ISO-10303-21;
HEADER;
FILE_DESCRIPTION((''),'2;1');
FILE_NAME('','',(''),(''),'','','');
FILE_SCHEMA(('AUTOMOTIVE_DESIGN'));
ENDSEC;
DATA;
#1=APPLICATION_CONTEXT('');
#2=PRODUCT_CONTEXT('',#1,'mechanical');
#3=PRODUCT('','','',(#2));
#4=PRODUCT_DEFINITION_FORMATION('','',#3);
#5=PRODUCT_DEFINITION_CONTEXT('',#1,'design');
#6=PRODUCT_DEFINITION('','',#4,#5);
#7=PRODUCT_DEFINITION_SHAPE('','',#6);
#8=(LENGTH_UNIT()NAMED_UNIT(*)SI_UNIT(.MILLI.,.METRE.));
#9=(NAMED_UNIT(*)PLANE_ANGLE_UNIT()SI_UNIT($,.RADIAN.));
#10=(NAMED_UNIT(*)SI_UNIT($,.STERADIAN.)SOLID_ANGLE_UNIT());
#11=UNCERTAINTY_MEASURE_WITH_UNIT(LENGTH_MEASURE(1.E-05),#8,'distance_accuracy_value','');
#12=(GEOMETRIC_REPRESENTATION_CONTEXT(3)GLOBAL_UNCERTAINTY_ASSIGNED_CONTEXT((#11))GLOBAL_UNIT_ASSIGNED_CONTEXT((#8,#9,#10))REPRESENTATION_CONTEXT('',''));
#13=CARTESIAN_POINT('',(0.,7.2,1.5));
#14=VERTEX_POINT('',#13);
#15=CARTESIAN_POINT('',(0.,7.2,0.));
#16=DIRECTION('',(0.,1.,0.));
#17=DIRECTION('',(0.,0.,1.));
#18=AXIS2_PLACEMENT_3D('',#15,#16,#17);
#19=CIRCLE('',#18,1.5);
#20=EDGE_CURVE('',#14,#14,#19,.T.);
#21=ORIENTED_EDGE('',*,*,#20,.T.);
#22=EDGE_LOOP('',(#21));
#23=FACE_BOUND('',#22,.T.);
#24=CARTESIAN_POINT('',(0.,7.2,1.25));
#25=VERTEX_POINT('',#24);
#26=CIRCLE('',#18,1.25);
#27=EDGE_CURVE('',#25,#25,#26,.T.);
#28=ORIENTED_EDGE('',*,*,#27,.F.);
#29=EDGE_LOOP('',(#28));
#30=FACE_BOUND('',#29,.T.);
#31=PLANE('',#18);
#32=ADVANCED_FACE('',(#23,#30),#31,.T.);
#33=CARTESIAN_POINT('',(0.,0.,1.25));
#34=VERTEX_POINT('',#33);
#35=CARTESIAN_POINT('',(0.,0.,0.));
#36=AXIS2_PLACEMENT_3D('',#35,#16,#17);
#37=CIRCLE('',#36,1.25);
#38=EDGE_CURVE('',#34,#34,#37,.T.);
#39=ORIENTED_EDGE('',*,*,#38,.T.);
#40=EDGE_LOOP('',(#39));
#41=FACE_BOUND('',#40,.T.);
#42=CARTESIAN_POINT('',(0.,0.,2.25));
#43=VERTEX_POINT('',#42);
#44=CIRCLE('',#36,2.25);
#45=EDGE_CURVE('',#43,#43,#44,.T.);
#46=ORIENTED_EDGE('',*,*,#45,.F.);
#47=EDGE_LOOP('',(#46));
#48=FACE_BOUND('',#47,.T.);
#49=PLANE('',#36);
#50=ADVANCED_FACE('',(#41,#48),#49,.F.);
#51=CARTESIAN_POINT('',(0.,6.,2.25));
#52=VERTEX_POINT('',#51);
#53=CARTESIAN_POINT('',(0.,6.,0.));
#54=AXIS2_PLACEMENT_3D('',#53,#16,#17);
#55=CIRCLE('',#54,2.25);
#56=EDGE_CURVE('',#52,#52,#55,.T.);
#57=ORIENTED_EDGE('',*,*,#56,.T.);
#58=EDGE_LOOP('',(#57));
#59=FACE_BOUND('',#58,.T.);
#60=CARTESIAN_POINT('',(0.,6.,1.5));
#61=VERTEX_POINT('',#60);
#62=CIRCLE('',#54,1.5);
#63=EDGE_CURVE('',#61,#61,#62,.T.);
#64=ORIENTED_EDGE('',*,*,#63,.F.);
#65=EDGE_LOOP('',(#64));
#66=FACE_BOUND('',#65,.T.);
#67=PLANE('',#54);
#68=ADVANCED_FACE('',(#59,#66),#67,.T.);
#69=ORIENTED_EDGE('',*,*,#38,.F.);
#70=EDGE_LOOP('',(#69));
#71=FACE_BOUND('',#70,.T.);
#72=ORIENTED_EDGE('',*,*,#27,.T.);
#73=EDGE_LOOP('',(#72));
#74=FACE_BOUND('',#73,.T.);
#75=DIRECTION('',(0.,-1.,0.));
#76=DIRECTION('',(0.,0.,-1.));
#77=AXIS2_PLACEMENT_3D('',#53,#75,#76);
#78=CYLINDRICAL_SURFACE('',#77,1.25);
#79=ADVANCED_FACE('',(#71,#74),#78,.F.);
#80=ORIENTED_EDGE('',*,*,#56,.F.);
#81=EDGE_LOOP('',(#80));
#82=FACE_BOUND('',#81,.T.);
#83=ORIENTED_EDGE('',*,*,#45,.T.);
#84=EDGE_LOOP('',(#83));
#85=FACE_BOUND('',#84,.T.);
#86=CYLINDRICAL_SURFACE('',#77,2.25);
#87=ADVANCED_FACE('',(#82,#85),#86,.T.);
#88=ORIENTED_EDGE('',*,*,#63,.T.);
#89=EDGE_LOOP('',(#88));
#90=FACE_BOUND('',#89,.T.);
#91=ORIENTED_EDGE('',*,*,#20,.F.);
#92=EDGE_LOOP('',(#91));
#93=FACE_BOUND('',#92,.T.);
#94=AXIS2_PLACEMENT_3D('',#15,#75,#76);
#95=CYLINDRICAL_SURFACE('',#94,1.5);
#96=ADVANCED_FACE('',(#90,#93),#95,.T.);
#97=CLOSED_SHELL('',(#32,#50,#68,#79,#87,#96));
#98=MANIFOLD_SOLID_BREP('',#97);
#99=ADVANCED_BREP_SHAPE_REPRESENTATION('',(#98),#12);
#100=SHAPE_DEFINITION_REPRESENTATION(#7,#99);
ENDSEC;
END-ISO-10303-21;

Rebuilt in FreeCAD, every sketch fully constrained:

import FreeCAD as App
import Part
import Sketcher
from FreeCAD import Vector

doc = App.newDocument("Part")
body = doc.addObject("PartDesign::Body", "Body")

# Sketch on XZ plane
sketch1 = body.newObject("Sketcher::SketchObject", "Sketch")
sketch1.AttachmentSupport = (doc.getObject("XZ_Plane"), [""])
sketch1.MapMode = "FlatFace"
sketch1.addGeometry(Part.Circle(Vector(0, 0, 0), Vector(0, 0, 1), 2.25), False)
sketch1.addGeometry(Part.Circle(Vector(0, 0, 0), Vector(0, 0, 1), 1.25), False)
sketch1.addConstraint(Sketcher.Constraint("Coincident", 0, 3, -1, 1))
sketch1.addConstraint(Sketcher.Constraint("Coincident", 1, 3, -1, 1))
sketch1.addConstraint(Sketcher.Constraint("Diameter", 0, 4.5))
sketch1.addConstraint(Sketcher.Constraint("Diameter", 1, 2.5))
pad1 = body.newObject("PartDesign::Pad", "Pad")
pad1.Profile = sketch1
pad1.Length = 6
pad1.Reversed = True

# Sketch on XZ plane
sketch2 = body.newObject("Sketcher::SketchObject", "Sketch001")
sketch2.AttachmentSupport = (doc.getObject("XZ_Plane"), [""])
sketch2.MapMode = "FlatFace"
sketch2.AttachmentOffset = App.Placement(Vector(0, 0, -6), App.Rotation())
sketch2.addGeometry(Part.Circle(Vector(0, 0, 0), Vector(0, 0, 1), 1.5), False)
sketch2.addGeometry(Part.Circle(Vector(0, 0, 0), Vector(0, 0, 1), 1.25), False)
sketch2.addConstraint(Sketcher.Constraint("Coincident", 0, 3, -1, 1))
sketch2.addConstraint(Sketcher.Constraint("Coincident", 1, 3, -1, 1))
sketch2.addConstraint(Sketcher.Constraint("Diameter", 0, 3.0))
sketch2.addConstraint(Sketcher.Constraint("Diameter", 1, 2.5))
pad2 = body.newObject("PartDesign::Pad", "Pad001")
pad2.Profile = sketch2
pad2.Length = 1.2
pad2.Reversed = True

doc.recompute()
